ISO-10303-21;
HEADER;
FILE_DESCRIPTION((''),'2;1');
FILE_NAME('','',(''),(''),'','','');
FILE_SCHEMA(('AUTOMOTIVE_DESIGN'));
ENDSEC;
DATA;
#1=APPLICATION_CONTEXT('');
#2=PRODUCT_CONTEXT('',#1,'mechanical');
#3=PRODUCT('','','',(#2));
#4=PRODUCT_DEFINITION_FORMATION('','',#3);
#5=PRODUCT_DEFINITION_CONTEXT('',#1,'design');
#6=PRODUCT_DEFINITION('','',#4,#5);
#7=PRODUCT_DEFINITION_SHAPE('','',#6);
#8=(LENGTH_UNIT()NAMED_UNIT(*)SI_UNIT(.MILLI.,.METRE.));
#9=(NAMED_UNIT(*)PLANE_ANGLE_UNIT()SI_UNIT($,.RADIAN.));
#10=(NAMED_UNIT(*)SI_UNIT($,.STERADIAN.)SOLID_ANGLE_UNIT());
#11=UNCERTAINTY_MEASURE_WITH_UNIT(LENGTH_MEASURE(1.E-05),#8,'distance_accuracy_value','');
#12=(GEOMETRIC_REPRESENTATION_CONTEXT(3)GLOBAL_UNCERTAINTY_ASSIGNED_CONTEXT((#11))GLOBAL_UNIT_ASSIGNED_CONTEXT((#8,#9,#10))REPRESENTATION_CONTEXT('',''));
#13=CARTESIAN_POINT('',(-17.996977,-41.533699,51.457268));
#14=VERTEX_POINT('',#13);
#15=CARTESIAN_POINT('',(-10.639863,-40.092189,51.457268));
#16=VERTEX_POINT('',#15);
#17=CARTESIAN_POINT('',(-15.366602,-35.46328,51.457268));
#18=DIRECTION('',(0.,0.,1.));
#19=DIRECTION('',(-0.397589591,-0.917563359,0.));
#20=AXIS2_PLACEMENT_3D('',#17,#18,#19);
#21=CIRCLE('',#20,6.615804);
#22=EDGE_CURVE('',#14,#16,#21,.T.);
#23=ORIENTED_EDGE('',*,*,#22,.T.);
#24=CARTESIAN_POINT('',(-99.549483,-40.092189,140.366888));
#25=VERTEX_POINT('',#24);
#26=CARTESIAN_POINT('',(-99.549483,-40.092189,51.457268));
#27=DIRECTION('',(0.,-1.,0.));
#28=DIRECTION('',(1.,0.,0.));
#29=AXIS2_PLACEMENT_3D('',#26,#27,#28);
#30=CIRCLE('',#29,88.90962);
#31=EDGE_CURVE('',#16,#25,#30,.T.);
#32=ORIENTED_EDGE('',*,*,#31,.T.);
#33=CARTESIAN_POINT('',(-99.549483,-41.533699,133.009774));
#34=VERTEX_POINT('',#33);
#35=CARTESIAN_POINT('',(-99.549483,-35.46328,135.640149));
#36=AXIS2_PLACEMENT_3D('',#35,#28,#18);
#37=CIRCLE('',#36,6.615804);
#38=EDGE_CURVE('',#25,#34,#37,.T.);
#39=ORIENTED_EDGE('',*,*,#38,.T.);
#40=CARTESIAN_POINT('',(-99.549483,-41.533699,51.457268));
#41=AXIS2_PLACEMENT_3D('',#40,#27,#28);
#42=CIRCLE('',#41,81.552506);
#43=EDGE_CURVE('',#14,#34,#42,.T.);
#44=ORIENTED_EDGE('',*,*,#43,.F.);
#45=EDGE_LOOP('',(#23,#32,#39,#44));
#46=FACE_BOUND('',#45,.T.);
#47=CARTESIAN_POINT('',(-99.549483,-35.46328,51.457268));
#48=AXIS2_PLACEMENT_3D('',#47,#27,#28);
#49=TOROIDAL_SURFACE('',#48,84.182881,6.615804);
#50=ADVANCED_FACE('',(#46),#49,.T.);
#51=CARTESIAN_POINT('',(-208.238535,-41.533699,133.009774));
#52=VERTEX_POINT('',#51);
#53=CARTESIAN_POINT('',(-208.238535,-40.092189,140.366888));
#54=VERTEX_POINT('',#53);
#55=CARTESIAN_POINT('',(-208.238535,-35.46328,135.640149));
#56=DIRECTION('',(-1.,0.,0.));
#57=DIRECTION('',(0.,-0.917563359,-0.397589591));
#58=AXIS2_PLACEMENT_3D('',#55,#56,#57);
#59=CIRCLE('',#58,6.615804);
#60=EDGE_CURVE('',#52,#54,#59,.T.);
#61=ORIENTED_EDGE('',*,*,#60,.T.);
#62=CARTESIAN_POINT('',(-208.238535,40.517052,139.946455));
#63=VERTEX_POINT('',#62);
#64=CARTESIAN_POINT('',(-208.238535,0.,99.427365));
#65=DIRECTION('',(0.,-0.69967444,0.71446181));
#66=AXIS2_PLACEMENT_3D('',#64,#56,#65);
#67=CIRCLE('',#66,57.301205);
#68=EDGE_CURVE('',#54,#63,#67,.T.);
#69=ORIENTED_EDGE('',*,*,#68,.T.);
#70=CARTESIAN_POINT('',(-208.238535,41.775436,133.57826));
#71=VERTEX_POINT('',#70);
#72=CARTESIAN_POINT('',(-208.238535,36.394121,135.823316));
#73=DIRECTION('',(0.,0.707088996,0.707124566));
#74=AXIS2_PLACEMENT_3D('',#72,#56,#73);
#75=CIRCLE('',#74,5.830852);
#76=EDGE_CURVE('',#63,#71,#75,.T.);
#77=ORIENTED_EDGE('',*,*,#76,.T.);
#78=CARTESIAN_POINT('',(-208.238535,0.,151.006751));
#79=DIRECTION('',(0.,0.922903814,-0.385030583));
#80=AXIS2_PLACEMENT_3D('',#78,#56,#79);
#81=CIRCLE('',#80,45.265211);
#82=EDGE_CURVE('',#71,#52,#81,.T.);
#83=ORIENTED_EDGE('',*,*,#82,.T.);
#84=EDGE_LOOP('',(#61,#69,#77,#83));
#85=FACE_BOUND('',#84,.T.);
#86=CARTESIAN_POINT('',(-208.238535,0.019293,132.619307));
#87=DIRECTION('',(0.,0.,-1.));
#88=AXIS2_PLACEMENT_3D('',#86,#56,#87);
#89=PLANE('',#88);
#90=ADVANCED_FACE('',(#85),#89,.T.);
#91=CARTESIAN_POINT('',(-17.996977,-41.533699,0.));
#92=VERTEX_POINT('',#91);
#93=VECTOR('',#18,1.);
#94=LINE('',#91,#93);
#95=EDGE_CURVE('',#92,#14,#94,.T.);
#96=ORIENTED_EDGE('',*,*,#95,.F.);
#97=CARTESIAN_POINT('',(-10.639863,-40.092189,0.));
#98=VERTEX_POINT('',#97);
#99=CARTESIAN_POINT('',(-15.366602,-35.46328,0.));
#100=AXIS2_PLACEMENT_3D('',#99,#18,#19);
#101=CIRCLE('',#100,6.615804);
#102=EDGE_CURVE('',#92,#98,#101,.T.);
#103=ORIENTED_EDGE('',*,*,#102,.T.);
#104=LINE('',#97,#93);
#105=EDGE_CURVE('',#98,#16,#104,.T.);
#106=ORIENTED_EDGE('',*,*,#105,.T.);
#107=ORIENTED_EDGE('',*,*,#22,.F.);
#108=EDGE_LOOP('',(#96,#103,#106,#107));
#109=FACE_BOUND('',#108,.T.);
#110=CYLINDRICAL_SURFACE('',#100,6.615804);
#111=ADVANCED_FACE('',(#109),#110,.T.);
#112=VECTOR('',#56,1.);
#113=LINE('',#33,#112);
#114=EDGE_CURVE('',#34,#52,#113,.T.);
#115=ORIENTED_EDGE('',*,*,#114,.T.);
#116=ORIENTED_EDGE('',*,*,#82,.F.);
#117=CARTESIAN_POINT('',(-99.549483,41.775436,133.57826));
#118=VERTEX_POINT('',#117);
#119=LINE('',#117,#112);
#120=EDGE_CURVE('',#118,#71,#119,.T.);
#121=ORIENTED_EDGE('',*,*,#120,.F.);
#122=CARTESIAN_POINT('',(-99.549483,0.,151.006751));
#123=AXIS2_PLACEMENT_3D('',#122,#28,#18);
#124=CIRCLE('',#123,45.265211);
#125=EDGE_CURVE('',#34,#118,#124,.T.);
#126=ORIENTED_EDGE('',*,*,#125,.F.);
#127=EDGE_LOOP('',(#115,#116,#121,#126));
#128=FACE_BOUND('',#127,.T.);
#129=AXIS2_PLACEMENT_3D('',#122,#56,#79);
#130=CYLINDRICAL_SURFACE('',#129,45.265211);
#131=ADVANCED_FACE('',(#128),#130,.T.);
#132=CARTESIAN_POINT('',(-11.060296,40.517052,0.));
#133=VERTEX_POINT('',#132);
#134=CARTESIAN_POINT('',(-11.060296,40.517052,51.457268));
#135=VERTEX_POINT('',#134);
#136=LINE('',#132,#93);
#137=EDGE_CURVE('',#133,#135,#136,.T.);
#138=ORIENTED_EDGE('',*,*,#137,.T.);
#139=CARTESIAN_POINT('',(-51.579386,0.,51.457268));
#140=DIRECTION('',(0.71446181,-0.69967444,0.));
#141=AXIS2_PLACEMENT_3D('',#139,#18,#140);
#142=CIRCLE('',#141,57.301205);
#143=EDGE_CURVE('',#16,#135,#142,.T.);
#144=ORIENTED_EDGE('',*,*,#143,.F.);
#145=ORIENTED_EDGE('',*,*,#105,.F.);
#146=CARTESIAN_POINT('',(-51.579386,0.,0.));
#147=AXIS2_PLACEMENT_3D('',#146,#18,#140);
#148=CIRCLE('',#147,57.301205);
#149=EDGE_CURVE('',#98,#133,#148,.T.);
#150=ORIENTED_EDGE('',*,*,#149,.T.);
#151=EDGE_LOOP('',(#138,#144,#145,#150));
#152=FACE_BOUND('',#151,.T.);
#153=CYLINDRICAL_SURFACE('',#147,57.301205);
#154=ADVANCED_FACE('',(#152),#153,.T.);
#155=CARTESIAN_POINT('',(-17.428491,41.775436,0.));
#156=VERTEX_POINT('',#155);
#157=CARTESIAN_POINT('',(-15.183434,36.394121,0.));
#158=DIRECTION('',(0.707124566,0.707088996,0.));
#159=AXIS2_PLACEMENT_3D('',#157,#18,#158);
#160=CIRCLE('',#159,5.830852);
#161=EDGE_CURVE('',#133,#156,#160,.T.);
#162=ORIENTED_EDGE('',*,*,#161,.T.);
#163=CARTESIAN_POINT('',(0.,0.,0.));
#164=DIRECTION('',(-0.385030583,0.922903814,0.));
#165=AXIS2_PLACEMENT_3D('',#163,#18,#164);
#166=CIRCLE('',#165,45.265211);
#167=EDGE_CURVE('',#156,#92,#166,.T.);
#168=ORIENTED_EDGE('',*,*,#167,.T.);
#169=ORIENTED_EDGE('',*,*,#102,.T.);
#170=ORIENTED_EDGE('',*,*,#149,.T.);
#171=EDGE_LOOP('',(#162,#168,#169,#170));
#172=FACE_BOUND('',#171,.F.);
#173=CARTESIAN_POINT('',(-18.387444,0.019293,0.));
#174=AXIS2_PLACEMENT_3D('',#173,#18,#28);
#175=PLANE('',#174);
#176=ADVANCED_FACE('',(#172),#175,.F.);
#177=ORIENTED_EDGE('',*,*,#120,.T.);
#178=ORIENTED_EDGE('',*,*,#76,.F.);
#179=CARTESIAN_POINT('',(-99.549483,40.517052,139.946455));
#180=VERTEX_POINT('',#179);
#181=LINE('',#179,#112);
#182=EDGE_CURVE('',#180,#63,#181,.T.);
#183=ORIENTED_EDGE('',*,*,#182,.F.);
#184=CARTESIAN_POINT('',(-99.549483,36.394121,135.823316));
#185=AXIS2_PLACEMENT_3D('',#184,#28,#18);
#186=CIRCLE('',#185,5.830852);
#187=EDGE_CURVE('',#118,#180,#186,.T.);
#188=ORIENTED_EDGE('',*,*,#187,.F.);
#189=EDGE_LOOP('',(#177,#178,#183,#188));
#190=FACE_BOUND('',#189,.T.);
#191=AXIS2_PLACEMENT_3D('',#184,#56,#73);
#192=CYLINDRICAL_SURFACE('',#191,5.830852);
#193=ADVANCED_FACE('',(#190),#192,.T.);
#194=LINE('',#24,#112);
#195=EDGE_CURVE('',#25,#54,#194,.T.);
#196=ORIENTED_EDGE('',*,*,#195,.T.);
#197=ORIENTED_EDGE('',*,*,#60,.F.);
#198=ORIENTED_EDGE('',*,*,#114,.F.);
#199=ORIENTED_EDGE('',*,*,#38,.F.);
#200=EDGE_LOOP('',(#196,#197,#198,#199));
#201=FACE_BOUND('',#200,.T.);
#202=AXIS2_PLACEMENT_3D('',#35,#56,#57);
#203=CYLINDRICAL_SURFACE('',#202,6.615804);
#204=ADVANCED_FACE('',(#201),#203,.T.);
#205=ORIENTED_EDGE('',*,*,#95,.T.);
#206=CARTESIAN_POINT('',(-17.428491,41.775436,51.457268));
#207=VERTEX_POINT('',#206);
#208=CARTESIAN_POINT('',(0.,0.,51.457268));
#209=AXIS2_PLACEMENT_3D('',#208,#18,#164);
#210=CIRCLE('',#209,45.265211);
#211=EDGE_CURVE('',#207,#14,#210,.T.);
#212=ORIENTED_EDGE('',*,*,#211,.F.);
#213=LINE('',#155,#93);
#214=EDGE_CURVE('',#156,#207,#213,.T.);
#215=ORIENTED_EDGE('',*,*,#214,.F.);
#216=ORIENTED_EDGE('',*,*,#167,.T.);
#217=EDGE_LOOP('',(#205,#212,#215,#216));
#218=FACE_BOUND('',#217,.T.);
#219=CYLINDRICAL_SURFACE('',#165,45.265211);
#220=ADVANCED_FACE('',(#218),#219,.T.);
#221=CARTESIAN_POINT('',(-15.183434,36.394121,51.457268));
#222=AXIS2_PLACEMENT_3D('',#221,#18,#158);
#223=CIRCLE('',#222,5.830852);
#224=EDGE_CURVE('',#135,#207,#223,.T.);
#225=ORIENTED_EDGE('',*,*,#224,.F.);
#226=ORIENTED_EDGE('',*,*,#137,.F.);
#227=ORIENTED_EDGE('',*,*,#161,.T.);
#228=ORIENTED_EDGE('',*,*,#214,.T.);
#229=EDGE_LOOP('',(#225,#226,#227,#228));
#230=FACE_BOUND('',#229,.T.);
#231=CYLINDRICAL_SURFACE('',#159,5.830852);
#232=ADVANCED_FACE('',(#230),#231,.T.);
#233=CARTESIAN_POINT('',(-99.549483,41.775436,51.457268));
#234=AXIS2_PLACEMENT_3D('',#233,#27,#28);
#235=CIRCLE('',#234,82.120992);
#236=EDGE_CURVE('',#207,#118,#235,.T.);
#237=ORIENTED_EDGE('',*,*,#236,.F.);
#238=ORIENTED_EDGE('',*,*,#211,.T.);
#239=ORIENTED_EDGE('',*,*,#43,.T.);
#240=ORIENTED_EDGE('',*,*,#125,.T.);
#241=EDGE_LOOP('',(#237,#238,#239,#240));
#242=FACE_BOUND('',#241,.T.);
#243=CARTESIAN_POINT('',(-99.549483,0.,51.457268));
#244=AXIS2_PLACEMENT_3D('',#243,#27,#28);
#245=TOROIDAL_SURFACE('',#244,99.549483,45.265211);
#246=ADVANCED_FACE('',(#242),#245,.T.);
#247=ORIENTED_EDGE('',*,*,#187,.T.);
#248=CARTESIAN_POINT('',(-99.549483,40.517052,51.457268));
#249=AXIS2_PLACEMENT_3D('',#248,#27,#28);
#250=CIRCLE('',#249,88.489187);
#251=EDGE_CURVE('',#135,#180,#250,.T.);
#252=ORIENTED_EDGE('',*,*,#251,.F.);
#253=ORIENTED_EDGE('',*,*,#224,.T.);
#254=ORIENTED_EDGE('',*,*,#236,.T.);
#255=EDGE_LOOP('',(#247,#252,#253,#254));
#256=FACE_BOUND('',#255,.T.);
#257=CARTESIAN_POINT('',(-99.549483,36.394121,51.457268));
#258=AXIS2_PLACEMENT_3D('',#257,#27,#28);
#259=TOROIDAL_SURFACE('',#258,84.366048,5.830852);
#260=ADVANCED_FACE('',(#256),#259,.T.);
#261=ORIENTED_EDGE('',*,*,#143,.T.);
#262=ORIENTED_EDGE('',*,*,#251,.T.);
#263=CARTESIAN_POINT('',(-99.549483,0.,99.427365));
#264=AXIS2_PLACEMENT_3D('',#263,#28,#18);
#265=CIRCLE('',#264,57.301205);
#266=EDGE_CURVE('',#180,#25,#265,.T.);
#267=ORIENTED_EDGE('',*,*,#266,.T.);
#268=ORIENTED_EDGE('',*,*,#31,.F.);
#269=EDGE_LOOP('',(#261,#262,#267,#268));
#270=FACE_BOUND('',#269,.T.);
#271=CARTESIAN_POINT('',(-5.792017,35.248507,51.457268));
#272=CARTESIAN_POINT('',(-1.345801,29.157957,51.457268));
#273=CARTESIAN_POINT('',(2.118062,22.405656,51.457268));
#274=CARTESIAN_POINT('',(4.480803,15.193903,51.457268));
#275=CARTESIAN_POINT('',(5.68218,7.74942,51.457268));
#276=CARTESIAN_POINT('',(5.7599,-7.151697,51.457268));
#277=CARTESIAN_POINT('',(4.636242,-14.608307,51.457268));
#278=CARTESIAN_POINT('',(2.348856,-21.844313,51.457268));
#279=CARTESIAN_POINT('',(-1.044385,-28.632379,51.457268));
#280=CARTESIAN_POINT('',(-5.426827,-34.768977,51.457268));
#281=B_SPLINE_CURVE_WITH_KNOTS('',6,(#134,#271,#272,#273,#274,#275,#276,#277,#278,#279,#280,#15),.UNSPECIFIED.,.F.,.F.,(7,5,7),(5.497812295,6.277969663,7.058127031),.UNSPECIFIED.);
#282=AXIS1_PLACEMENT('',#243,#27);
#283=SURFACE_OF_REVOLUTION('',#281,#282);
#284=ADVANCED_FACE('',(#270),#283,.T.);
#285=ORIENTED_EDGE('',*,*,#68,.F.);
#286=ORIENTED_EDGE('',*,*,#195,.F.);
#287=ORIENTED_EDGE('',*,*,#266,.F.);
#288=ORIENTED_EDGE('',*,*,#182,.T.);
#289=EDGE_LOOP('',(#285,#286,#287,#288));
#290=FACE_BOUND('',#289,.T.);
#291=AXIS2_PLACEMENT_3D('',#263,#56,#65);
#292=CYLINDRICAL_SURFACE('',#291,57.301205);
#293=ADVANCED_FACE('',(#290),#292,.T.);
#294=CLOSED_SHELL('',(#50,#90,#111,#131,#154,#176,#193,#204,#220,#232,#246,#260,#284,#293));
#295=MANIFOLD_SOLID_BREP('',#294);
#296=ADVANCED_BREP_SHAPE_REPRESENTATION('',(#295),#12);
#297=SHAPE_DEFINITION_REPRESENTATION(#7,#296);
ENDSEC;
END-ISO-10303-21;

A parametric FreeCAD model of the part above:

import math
import FreeCAD as App
import Part
import Sketcher

doc = App.newDocument("Part")
body = doc.addObject("PartDesign::Body", "Body")

# Sketch on XY plane
sketch1 = doc.addObject("Sketcher::SketchObject", "Sketch")
body.addObject(sketch1)
sketch1.AttachmentSupport = (doc.XY_Plane, [""])
sketch1.MapMode = "FlatFace"
sketch1.addGeometry([
    Part.ArcOfCircle(Part.Circle(App.Vector(-15, -35, 0), App.Vector(0, 0, 1), 7), math.radians(-113), math.radians(-44)),
    Part.ArcOfCircle(Part.Circle(App.Vector(-52, 0, 0), App.Vector(0, 0, 1), 57), math.radians(-44), math.radians(45)),
    Part.ArcOfCircle(Part.Circle(App.Vector(-15, 36, 0), App.Vector(0, 0, 1), 6), math.radians(45), math.radians(113)),
    Part.ArcOfCircle(Part.Circle(App.Vector(0, 0, 0), App.Vector(0, 0, 1), 45), math.radians(113), math.radians(247)),
], False)
sketch1.addConstraint([
    Sketcher.Constraint("Tangent", 0, 2, 1, 1),
    Sketcher.Constraint("Tangent", 1, 2, 2, 1),
    Sketcher.Constraint("Tangent", 2, 2, 3, 1),
    Sketcher.Constraint("Tangent", 3, 2, 0, 1),
    Sketcher.Constraint("Coincident", 3, 3, -1, 1),
    Sketcher.Constraint("PointOnObject", 1, 3, -1),
    Sketcher.Constraint("Radius", 2, 5.830852),
    Sketcher.Constraint("Radius", 3, 45.265211),
    Sketcher.Constraint("Radius", 0, 6.615804),
    Sketcher.Constraint("Radius", 1, 57.301205),
    Sketcher.Constraint("DistanceY", 3, 2, -1, 1, 41.533699),
])

# Sketch on XZ plane
sketch2 = doc.addObject("Sketcher::SketchObject", "Sketch001")
body.addObject(sketch2)
sketch2.AttachmentSupport = (doc.XZ_Plane, [""])
sketch2.MapMode = "FlatFace"
sketch2.addGeometry([
    Part.LineSegment(App.Vector(0, 0, 0), App.Vector(0, 51, 0)),
    Part.ArcOfCircle(Part.Circle(App.Vector(-100, 51, 0), App.Vector(0, 0, 1), 100), math.radians(0), math.radians(90)),
    Part.LineSegment(App.Vector(-100, 151, 0), App.Vector(-208, 151, 0)),
], False)
sketch2.addConstraint([
    Sketcher.Constraint("Tangent", 0, 2, 1, 1),
    Sketcher.Constraint("Tangent", 1, 2, 2, 1),
    Sketcher.Constraint("Vertical", 0),
    Sketcher.Constraint("Horizontal", 2),
    Sketcher.Constraint("Coincident", 0, 1, -1, 1),
    Sketcher.Constraint("Radius", 1, 99.549483),
    Sketcher.Constraint("DistanceX", 2, 2, 2, 1, 108.689052),
    Sketcher.Constraint("DistanceY", 0, 1, 0, 2, 51.457268),
])
doc.recompute()

additivepipe = doc.addObject("PartDesign::AdditivePipe", "AdditivePipe")
body.addObject(additivepipe)
additivepipe.Profile = sketch1
additivepipe.Spine = (sketch2, ["Edge1", "Edge2", "Edge3"])

doc.recompute()
